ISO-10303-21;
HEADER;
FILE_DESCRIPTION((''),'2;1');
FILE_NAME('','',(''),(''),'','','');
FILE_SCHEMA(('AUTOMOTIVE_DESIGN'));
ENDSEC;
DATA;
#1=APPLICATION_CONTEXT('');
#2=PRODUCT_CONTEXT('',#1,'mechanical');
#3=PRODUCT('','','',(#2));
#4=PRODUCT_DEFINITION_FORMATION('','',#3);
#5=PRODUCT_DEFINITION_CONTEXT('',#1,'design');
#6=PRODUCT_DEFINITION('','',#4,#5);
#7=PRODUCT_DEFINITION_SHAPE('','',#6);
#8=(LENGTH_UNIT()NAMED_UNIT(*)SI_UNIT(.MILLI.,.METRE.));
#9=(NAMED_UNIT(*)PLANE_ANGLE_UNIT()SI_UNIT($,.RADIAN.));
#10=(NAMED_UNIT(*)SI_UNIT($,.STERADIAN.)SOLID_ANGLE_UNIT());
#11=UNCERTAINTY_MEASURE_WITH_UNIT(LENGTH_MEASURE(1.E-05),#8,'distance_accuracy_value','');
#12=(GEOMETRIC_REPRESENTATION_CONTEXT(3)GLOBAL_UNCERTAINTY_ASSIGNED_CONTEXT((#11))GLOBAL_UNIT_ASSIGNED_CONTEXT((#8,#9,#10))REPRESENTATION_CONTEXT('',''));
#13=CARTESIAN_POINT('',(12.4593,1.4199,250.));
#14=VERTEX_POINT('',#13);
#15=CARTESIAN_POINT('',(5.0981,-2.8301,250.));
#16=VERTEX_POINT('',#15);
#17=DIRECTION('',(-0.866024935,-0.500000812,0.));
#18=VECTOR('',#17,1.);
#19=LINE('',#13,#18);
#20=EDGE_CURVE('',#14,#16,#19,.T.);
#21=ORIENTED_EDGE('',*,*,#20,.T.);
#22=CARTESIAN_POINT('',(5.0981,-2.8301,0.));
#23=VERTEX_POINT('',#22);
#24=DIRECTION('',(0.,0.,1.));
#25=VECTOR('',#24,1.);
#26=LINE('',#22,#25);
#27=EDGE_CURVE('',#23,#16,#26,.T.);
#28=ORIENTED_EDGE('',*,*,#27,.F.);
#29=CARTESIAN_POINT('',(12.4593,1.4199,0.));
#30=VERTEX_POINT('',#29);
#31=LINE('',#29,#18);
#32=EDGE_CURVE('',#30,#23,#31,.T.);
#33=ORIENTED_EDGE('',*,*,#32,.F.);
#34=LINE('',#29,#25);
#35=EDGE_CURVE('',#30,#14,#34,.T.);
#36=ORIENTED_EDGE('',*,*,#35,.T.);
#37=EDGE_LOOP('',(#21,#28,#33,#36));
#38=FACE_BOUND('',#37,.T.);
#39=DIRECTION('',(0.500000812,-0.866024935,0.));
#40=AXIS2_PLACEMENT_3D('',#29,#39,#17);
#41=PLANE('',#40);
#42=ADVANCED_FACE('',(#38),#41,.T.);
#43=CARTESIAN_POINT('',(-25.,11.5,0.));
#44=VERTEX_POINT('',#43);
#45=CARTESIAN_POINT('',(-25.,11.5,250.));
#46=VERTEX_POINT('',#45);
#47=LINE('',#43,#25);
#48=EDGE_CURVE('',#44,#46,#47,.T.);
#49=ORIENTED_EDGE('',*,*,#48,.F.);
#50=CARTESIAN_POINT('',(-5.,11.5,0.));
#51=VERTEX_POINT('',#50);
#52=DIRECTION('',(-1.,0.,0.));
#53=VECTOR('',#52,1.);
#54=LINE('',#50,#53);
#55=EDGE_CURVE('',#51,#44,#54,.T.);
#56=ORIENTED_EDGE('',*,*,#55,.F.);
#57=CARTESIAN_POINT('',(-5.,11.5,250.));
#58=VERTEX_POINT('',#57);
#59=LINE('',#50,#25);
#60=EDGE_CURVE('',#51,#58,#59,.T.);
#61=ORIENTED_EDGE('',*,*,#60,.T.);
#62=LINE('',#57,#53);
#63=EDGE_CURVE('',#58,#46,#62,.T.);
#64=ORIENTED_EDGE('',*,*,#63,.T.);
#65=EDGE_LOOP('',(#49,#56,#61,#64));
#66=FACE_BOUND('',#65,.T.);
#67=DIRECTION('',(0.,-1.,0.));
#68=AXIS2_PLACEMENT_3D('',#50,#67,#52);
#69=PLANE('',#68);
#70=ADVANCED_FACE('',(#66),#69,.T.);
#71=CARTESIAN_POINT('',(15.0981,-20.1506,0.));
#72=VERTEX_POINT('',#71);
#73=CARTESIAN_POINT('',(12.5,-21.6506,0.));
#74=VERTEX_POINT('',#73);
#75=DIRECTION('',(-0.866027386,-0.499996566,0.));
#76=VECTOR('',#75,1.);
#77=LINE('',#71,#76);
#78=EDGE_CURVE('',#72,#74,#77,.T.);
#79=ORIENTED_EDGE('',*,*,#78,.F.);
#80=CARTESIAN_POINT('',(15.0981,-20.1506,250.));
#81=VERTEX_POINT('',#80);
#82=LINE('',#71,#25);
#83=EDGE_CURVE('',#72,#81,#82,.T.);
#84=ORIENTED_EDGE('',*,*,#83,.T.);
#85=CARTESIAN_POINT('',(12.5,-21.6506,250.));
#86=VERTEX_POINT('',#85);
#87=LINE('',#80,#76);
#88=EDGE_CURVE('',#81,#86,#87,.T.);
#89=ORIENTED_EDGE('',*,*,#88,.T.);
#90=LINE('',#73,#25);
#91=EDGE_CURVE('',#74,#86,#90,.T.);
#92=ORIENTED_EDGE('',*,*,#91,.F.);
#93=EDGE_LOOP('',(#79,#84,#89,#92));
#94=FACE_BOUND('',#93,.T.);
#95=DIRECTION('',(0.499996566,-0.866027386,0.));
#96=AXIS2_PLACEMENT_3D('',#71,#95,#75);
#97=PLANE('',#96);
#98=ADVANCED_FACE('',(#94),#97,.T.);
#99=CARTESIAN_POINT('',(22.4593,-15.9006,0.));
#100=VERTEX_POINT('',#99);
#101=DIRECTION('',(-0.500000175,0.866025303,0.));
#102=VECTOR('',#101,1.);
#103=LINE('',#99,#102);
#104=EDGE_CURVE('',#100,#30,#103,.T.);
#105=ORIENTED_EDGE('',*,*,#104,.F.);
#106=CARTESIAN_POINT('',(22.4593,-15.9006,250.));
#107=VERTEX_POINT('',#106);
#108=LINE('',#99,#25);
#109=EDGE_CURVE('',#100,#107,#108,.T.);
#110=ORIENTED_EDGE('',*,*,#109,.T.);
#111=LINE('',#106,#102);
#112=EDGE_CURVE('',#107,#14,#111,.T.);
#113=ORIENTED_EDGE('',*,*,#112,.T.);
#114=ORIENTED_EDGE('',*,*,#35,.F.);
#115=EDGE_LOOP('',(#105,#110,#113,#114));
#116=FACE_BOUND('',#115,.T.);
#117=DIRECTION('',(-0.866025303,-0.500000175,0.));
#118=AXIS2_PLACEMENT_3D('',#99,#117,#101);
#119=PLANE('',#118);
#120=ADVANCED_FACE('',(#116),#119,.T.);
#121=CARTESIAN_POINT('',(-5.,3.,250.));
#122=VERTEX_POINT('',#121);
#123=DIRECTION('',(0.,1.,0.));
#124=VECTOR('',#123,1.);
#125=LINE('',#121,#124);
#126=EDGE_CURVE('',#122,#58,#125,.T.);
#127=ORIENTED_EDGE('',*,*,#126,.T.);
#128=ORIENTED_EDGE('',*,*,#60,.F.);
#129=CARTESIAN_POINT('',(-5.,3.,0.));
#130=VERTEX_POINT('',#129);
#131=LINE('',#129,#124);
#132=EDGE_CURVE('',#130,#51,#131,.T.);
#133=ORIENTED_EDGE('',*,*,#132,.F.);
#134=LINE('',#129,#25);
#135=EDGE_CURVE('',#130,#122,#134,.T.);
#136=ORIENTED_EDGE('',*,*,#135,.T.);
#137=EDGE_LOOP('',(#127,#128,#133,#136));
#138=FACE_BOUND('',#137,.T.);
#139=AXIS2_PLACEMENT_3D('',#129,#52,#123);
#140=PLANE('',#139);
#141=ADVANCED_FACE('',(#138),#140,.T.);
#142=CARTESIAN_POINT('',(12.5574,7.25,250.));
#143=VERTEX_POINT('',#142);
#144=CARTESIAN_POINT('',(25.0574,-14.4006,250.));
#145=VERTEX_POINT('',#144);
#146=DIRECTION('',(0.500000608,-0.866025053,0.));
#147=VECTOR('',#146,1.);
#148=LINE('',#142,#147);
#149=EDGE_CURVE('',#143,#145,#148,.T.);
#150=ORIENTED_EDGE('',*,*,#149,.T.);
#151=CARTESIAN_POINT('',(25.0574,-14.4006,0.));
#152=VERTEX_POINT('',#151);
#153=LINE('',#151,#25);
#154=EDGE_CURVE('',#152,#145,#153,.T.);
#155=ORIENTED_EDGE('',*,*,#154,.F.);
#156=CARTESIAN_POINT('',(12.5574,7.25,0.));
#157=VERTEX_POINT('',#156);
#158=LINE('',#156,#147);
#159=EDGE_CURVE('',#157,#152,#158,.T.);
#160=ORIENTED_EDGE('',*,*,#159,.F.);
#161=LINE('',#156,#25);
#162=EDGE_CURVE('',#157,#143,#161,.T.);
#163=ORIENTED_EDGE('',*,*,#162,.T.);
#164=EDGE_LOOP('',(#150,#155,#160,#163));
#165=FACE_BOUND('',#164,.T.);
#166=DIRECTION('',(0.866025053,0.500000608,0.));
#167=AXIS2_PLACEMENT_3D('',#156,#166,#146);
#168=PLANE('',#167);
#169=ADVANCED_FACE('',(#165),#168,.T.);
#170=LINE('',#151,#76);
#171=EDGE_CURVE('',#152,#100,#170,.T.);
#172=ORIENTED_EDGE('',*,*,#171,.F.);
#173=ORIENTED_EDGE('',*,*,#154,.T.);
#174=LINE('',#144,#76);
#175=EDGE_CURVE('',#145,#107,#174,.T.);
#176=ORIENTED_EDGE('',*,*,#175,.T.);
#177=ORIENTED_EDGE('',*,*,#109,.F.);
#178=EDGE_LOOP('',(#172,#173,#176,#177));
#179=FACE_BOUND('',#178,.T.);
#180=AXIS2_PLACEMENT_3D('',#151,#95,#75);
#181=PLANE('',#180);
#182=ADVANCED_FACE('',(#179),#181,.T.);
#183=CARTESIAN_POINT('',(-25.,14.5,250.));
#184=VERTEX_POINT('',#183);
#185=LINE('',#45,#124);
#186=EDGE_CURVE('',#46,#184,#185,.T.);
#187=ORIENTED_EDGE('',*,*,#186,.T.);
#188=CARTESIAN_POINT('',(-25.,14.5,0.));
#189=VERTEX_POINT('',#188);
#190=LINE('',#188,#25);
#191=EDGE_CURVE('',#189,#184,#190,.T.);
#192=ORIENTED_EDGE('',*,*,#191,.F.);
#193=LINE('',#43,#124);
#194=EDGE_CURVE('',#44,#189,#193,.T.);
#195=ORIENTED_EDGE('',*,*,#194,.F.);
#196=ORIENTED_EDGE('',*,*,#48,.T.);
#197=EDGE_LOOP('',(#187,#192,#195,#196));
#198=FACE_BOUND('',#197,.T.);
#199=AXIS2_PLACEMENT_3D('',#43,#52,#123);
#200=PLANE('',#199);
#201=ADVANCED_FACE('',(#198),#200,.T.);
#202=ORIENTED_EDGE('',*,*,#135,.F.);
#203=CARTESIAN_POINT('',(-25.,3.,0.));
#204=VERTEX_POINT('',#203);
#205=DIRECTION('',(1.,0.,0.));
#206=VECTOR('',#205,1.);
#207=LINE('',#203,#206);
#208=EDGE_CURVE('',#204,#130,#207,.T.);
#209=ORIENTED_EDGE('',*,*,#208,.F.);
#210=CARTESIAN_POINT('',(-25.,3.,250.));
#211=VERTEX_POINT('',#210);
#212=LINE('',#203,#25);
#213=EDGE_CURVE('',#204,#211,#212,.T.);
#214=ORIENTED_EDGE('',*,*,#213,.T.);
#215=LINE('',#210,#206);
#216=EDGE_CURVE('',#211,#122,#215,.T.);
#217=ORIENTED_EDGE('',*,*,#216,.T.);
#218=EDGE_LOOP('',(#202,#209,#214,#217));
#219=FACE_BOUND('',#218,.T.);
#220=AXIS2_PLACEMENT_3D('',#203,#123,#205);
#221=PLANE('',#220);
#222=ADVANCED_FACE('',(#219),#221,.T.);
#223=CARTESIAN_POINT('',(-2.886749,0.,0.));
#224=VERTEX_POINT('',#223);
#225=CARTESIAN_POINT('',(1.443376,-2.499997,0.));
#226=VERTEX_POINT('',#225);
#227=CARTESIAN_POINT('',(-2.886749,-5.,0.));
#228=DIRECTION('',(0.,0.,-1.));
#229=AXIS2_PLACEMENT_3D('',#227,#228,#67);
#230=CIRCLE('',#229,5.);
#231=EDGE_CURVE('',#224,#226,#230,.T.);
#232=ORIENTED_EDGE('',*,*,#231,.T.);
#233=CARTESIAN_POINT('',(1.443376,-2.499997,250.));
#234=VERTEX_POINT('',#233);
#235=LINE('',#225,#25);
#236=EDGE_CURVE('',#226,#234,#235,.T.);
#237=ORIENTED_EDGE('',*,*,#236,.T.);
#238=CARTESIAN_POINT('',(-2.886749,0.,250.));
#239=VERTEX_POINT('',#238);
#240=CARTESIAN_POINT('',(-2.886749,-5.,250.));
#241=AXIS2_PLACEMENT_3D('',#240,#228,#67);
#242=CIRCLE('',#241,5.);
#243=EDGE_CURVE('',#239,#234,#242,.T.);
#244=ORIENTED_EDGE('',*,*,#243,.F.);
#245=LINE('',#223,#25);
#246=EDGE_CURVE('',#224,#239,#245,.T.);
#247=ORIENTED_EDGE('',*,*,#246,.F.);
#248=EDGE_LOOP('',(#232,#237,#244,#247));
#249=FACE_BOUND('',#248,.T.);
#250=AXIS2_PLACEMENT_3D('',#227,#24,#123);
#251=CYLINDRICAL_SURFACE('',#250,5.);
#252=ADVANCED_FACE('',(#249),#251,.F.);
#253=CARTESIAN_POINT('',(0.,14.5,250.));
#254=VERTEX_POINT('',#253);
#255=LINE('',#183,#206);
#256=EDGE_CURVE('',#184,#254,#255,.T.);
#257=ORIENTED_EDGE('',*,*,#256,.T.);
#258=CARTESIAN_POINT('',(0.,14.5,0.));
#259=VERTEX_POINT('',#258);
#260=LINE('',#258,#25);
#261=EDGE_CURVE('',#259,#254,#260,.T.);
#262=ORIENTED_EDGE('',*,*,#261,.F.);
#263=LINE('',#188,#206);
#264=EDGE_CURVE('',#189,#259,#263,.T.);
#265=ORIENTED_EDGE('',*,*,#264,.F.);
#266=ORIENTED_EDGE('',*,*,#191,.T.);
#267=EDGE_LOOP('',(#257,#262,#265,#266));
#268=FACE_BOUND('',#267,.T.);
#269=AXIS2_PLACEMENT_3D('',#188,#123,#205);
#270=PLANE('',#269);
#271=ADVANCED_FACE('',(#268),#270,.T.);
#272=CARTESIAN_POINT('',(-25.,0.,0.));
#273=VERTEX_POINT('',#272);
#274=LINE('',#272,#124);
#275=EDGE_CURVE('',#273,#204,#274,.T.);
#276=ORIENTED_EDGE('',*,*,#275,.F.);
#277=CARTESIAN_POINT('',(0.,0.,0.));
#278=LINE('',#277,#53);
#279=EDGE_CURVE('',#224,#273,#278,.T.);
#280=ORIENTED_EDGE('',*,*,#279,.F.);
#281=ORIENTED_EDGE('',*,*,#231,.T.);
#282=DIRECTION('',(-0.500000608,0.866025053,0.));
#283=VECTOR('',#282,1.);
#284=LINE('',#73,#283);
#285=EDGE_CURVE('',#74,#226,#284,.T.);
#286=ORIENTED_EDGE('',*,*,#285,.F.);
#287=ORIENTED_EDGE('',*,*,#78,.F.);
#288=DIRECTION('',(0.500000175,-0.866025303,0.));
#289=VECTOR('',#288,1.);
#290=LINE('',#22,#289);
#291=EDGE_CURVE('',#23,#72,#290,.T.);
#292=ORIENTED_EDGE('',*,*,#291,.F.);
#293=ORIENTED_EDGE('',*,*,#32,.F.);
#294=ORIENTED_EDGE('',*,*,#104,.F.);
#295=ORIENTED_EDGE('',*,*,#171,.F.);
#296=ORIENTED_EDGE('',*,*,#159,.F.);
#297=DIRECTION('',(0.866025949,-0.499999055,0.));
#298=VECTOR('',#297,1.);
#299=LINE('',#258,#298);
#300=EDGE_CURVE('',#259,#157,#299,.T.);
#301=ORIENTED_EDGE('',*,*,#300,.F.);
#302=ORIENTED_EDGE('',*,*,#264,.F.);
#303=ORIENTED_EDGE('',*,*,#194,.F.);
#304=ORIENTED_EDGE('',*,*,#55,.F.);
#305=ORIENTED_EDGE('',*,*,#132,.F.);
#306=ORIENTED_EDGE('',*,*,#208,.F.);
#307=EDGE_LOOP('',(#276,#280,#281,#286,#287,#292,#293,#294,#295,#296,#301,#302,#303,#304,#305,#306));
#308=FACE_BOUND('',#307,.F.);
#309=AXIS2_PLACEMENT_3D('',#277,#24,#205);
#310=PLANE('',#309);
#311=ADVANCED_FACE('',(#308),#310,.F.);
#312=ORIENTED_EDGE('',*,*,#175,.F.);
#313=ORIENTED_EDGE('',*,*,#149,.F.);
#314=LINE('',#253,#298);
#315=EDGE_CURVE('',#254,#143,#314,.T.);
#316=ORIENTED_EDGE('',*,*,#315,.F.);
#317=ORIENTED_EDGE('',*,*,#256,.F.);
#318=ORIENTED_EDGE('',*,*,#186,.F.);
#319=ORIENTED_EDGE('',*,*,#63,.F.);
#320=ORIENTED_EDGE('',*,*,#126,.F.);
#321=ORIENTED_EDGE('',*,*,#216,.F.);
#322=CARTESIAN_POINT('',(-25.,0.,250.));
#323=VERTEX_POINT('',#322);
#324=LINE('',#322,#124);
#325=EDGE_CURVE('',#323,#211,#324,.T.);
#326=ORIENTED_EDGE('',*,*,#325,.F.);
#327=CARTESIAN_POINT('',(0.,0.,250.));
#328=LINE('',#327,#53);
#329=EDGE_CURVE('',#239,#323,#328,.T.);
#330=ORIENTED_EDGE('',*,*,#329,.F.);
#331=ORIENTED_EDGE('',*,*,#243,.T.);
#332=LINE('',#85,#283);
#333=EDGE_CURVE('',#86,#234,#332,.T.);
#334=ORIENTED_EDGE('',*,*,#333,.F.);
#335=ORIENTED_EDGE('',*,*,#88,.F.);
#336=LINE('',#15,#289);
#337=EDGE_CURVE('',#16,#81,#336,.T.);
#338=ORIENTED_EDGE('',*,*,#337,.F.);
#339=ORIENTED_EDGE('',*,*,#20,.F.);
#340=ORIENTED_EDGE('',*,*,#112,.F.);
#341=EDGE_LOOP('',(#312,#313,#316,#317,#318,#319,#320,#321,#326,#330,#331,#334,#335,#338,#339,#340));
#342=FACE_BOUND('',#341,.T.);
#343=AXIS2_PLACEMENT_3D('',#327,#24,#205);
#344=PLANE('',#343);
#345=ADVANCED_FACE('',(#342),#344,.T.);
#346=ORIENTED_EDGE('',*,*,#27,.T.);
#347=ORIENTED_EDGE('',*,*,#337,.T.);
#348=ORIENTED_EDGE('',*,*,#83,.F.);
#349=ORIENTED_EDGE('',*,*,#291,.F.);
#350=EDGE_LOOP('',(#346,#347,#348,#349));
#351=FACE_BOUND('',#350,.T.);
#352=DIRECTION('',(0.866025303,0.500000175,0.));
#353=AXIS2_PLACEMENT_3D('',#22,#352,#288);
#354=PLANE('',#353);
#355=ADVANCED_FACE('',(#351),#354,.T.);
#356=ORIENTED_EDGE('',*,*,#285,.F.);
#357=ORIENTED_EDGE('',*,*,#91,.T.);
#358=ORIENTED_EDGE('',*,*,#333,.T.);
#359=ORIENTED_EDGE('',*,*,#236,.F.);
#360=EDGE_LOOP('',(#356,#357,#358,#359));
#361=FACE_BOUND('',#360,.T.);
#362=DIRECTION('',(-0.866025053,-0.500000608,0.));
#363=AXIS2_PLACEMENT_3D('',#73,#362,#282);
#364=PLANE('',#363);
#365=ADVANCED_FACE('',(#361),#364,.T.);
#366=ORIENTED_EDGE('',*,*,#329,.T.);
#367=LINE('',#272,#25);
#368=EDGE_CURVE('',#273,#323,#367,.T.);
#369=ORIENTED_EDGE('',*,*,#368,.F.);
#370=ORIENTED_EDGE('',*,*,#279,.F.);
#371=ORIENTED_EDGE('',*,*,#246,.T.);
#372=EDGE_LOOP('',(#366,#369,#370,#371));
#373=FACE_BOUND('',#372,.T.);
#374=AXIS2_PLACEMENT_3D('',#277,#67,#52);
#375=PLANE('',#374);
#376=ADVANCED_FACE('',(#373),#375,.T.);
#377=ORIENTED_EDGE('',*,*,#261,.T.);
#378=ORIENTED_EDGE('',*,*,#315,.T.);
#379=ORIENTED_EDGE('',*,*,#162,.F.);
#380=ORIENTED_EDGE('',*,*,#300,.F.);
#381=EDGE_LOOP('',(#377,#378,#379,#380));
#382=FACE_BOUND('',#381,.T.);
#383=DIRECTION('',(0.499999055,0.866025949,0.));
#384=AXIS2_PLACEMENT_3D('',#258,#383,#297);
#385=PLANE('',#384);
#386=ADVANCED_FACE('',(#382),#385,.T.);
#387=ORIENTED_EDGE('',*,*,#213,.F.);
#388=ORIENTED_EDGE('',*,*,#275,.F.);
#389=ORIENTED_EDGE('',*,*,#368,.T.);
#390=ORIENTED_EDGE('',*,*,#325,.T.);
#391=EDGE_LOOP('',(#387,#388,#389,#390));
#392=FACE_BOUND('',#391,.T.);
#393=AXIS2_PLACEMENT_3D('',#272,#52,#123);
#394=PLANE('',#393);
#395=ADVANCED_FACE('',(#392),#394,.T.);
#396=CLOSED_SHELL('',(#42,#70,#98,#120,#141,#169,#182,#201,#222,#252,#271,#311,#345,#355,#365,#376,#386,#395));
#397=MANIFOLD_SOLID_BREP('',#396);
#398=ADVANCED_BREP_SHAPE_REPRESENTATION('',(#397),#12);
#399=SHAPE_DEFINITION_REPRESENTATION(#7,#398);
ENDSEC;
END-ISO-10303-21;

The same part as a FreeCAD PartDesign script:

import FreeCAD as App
import Part
import Sketcher

V = App.Vector
Q = App.Units.Quantity


def edges_at(feature, points):
    """Names of the edges that pass closest to the given points."""
    edges = feature.Shape.Edges
    near = lambda p: min(range(len(edges)), key=lambda i: edges[i].distToShape(Part.Vertex(*p))[0])
    return sorted({f"Edge{near(p) + 1}" for p in points})

doc = App.newDocument("Part")
body = doc.addObject("PartDesign::Body", "Body")

# Sketch on XY plane
sketch1 = body.newObject("Sketcher::SketchObject", "Sketch")
sketch1.AttachmentSupport = (doc.getObject("XY_Plane"), [""])
sketch1.MapMode = "FlatFace"
sketch1.addGeometry([
    Part.LineSegment(V(-25, 0, 0), V(0, 0, 0)),  # 0
    Part.LineSegment(V(0, 0, 0), V(12.5, -21.6506, 0)),  # 1
    Part.LineSegment(V(12.5, -21.6506, 0), V(15.0981, -20.1506, 0)),  # 2
    Part.LineSegment(V(15.0981, -20.1506, 0), V(5.0981, -2.8301, 0)),  # 3
    Part.LineSegment(V(5.0981, -2.8301, 0), V(12.4593, 1.4199, 0)),  # 4
    Part.LineSegment(V(12.4593, 1.4199, 0), V(22.4593, -15.9006, 0)),  # 5
    Part.LineSegment(V(22.4593, -15.9006, 0), V(25.0574, -14.4006, 0)),  # 6
    Part.LineSegment(V(25.0574, -14.4006, 0), V(12.5574, 7.25, 0)),  # 7
    Part.LineSegment(V(12.5574, 7.25, 0), V(0, 14.5, 0)),  # 8
    Part.LineSegment(V(0, 14.5, 0), V(-25, 14.5, 0)),  # 9
    Part.LineSegment(V(-25, 14.5, 0), V(-25, 11.5, 0)),  # 10
    Part.LineSegment(V(-25, 11.5, 0), V(-5, 11.5, 0)),  # 11
    Part.LineSegment(V(-5, 11.5, 0), V(-5, 3, 0)),  # 12
    Part.LineSegment(V(-5, 3, 0), V(-25, 3, 0)),  # 13
    Part.LineSegment(V(-25, 3, 0), V(-25, 0, 0)),  # 14
], False)
sketch1.addConstraint([
    Sketcher.Constraint("Coincident", 0, 2, 1, 1),
    Sketcher.Constraint("Coincident", 1, 2, 2, 1),
    Sketcher.Constraint("Coincident", 2, 2, 3, 1),
    Sketcher.Constraint("Coincident", 3, 2, 4, 1),
    Sketcher.Constraint("Coincident", 4, 2, 5, 1),
    Sketcher.Constraint("Coincident", 5, 2, 6, 1),
    Sketcher.Constraint("Coincident", 6, 2, 7, 1),
    Sketcher.Constraint("Coincident", 7, 2, 8, 1),
    Sketcher.Constraint("Coincident", 8, 2, 9, 1),
    Sketcher.Constraint("Coincident", 9, 2, 10, 1),
    Sketcher.Constraint("Coincident", 10, 2, 11, 1),
    Sketcher.Constraint("Coincident", 11, 2, 12, 1),
    Sketcher.Constraint("Coincident", 12, 2, 13, 1),
    Sketcher.Constraint("Coincident", 13, 2, 14, 1),
    Sketcher.Constraint("Coincident", 14, 2, 0, 1),
    Sketcher.Constraint("Horizontal", 0),
    Sketcher.Constraint("Horizontal", 9),
    Sketcher.Constraint("Vertical", 10),
    Sketcher.Constraint("Horizontal", 11),
    Sketcher.Constraint("Vertical", 12),
    Sketcher.Constraint("Horizontal", 13),
    Sketcher.Constraint("Vertical", 14),
    Sketcher.Constraint("Coincident", 0, 2, -1, 1),
    Sketcher.Constraint("PointOnObject", 8, 2, -2),
    Sketcher.Constraint("Perpendicular", 1, 2),
    Sketcher.Constraint("Perpendicular", 2, 3),
    Sketcher.Constraint("Perpendicular", 3, 4),
    Sketcher.Constraint("Perpendicular", 4, 5),
    Sketcher.Constraint("Perpendicular", 5, 6),
    Sketcher.Constraint("Perpendicular", 6, 7),
    Sketcher.Constraint("Vertical", 10, 2, 13, 2),
    Sketcher.Constraint("Equal", 10, 14),
    Sketcher.Constraint("Equal", 3, 5),
    Sketcher.Constraint("Equal", 2, 6),
    Sketcher.Constraint("Equal", 1, 7),
    Sketcher.Constraint("DistanceX", 0, 1, 0, 2, Q("25 mm")),
    Sketcher.Constraint("DistanceX", 11, 1, 11, 2, Q("20 mm")),
    Sketcher.Constraint("DistanceY", 10, 2, 10, 1, Q("3 mm")),
    Sketcher.Constraint("Angle", 1, Q("-60 deg")),
    Sketcher.Constraint("Distance", 1, Q("25 mm")),
    Sketcher.Constraint("Distance", 2, Q("3 mm")),
    Sketcher.Constraint("Distance", 3, Q("20 mm")),
    Sketcher.Constraint("DistanceY", 12, 2, 12, 1, Q("8.5 mm")),
    Sketcher.Constraint("Distance", 4, Q("8.5 mm")),
])
pad1 = body.newObject("PartDesign::Pad", "Pad")
pad1.Profile = sketch1
pad1.Length = 250
doc.recompute()

fillet = body.newObject("PartDesign::Fillet", "Fillet")
fillet.Base = (pad1, edges_at(pad1, [(0, 0, 125)]))
fillet.Radius = 5

doc.recompute()
